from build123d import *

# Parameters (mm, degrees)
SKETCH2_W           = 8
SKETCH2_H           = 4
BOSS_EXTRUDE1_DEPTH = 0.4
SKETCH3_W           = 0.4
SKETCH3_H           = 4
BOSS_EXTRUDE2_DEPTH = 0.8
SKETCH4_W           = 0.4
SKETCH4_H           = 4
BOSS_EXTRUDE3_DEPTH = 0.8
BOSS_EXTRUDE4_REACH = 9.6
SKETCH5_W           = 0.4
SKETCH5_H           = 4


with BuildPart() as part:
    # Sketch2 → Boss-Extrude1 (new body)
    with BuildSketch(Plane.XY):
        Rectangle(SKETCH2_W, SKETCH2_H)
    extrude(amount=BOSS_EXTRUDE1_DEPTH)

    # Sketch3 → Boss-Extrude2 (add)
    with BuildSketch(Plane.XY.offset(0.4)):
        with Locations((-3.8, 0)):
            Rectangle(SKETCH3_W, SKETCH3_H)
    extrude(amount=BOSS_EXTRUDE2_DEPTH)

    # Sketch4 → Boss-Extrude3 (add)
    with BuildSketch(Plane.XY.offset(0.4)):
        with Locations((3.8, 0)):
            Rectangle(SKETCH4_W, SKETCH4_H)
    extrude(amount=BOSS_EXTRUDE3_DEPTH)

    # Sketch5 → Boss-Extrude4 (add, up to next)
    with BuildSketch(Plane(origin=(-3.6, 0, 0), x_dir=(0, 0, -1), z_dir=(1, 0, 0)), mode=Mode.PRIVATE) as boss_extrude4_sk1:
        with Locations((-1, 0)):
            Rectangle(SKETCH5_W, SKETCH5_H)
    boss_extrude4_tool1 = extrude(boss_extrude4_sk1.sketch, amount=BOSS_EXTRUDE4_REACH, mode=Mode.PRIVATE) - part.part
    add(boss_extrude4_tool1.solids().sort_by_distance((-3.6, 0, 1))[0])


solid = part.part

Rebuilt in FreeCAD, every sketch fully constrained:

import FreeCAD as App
import Part
import Sketcher
Q = App.Units.Quantity

doc = App.newDocument("Part")
body = doc.addObject("PartDesign::Body", "Body")

# Sketch on XY plane
sketch1 = body.newObject("Sketcher::SketchObject", "Sketch")
sketch1.AttachmentSupport = (doc.getObject("XY_Plane"), [""])
sketch1.MapMode = "FlatFace"
sketch1.addGeometry([
    Part.LineSegment(App.Vector(-4, 2, 0), App.Vector(-4, -2, 0)),
    Part.LineSegment(App.Vector(-4, -2, 0), App.Vector(4, -2, 0)),
    Part.LineSegment(App.Vector(4, -2, 0), App.Vector(4, 2, 0)),
    Part.LineSegment(App.Vector(4, 2, 0), App.Vector(-4, 2, 0)),
], False)
sketch1.addConstraint([
    Sketcher.Constraint("Coincident", 0, 2, 1, 1),
    Sketcher.Constraint("Coincident", 1, 2, 2, 1),
    Sketcher.Constraint("Coincident", 2, 2, 3, 1),
    Sketcher.Constraint("Coincident", 3, 2, 0, 1),
    Sketcher.Constraint("Vertical", 0),
    Sketcher.Constraint("Horizontal", 1),
    Sketcher.Constraint("Vertical", 2),
    Sketcher.Constraint("Horizontal", 3),
    Sketcher.Constraint("Symmetric", 0, 2, 2, 2, -1, 1),
    Sketcher.Constraint("DistanceX", 1, 1, 1, 2, Q("8 mm")),
    Sketcher.Constraint("DistanceY", 0, 2, 0, 1, Q("4 mm")),
])
pad1 = body.newObject("PartDesign::Pad", "Pad")
pad1.Profile = sketch1
pad1.Length = 0.4

# Sketch on XY plane
sketch2 = body.newObject("Sketcher::SketchObject", "Sketch001")
sketch2.AttachmentSupport = (doc.getObject("XY_Plane"), [""])
sketch2.MapMode = "FlatFace"
sketch2.AttachmentOffset = App.Placement(App.Vector(0, 0, 0.4), App.Rotation())
sketch2.addGeometry([
    Part.LineSegment(App.Vector(-4, 2, 0), App.Vector(-4, -2, 0)),
    Part.LineSegment(App.Vector(-4, -2, 0), App.Vector(-3.6, -2, 0)),
    Part.LineSegment(App.Vector(-3.6, -2, 0), App.Vector(-3.6, 2, 0)),
    Part.LineSegment(App.Vector(-3.6, 2, 0), App.Vector(-4, 2, 0)),
], False)
sketch2.addConstraint([
    Sketcher.Constraint("Coincident", 0, 2, 1, 1),
    Sketcher.Constraint("Coincident", 1, 2, 2, 1),
    Sketcher.Constraint("Coincident", 2, 2, 3, 1),
    Sketcher.Constraint("Coincident", 3, 2, 0, 1),
    Sketcher.Constraint("Vertical", 0),
    Sketcher.Constraint("Horizontal", 1),
    Sketcher.Constraint("Vertical", 2),
    Sketcher.Constraint("Horizontal", 3),
    Sketcher.Constraint("DistanceY", 0, 2, 0, 1, Q("4 mm")),
    Sketcher.Constraint("DistanceX", 1, 1, 1, 2, Q("0.4 mm")),
    Sketcher.Constraint("DistanceX", 0, 2, -1, 1, Q("4 mm")),
    Sketcher.Constraint("DistanceY", 0, 2, -1, 1, Q("2 mm")),
])
pad2 = body.newObject("PartDesign::Pad", "Pad001")
pad2.Profile = sketch2
pad2.Length = 0.8

# Sketch on XY plane
sketch3 = body.newObject("Sketcher::SketchObject", "Sketch002")
sketch3.AttachmentSupport = (doc.getObject("XY_Plane"), [""])
sketch3.MapMode = "FlatFace"
sketch3.AttachmentOffset = App.Placement(App.Vector(0, 0, 0.4), App.Rotation())
sketch3.addGeometry([
    Part.LineSegment(App.Vector(3.6, 2, 0), App.Vector(3.6, -2, 0)),
    Part.LineSegment(App.Vector(3.6, -2, 0), App.Vector(4, -2, 0)),
    Part.LineSegment(App.Vector(4, -2, 0), App.Vector(4, 2, 0)),
    Part.LineSegment(App.Vector(4, 2, 0), App.Vector(3.6, 2, 0)),
], False)
sketch3.addConstraint([
    Sketcher.Constraint("Coincident", 0, 2, 1, 1),
    Sketcher.Constraint("Coincident", 1, 2, 2, 1),
    Sketcher.Constraint("Coincident", 2, 2, 3, 1),
    Sketcher.Constraint("Coincident", 3, 2, 0, 1),
    Sketcher.Constraint("Vertical", 0),
    Sketcher.Constraint("Horizontal", 1),
    Sketcher.Constraint("Vertical", 2),
    Sketcher.Constraint("Horizontal", 3),
    Sketcher.Constraint("DistanceY", 0, 2, 0, 1, Q("4 mm")),
    Sketcher.Constraint("DistanceX", 1, 1, 1, 2, Q("0.4 mm")),
    Sketcher.Constraint("DistanceY", 0, 2, -1, 1, Q("2 mm")),
    Sketcher.Constraint("DistanceX", -1, 1, 1, 2, Q("4 mm")),
])
pad3 = body.newObject("PartDesign::Pad", "Pad002")
pad3.Profile = sketch3
pad3.Length = 0.8

# Sketch on YZ plane
sketch4 = body.newObject("Sketcher::SketchObject", "Sketch003")
sketch4.AttachmentSupport = (doc.getObject("YZ_Plane"), [""])
sketch4.MapMode = "FlatFace"
sketch4.AttachmentOffset = App.Placement(App.Vector(0, 0, -3.6), App.Rotation())
sketch4.addGeometry([
    Part.LineSegment(App.Vector(2, 1.2, 0), App.Vector(-2, 1.2, 0)),
    Part.LineSegment(App.Vector(-2, 1.2, 0), App.Vector(-2, 0.8, 0)),
    Part.LineSegment(App.Vector(-2, 0.8, 0), App.Vector(2, 0.8, 0)),
    Part.LineSegment(App.Vector(2, 0.8, 0), App.Vector(2, 1.2, 0)),
], False)
sketch4.addConstraint([
    Sketcher.Constraint("Coincident", 0, 2, 1, 1),
    Sketcher.Constraint("Coincident", 1, 2, 2, 1),
    Sketcher.Constraint("Coincident", 2, 2, 3, 1),
    Sketcher.Constraint("Coincident", 3, 2, 0, 1),
    Sketcher.Constraint("Horizontal", 0),
    Sketcher.Constraint("Vertical", 1),
    Sketcher.Constraint("Horizontal", 2),
    Sketcher.Constraint("Vertical", 3),
    Sketcher.Constraint("DistanceX", 0, 2, 0, 1, Q("4 mm")),
    Sketcher.Constraint("DistanceY", 1, 2, 1, 1, Q("0.4 mm")),
    Sketcher.Constraint("DistanceX", 0, 2, -1, 1, Q("2 mm")),
    Sketcher.Constraint("DistanceY", -1, 1, 0, 2, Q("1.2 mm")),
])
pad4 = body.newObject("PartDesign::Pad", "Pad003")
pad4.Profile = sketch4
pad4.Type = "UpToFirst"

doc.recompute()
